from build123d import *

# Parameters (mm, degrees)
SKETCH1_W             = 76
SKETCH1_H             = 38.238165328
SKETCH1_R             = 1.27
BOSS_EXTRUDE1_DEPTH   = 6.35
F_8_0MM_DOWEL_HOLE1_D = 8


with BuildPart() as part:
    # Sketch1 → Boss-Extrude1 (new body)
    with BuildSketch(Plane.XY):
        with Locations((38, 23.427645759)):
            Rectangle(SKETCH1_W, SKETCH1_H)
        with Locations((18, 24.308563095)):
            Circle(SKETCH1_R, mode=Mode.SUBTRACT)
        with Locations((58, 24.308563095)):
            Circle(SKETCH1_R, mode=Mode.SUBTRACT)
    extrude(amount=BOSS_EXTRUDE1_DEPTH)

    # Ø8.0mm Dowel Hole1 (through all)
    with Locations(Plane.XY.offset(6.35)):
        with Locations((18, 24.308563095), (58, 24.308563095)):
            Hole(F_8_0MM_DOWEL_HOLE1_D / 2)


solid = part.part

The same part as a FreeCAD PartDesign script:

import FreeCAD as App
import Part
import Sketcher

V = App.Vector
Q = App.Units.Quantity

doc = App.newDocument("Part")
body = doc.addObject("PartDesign::Body", "Body")

sketch1 = body.newObject("Sketcher::SketchObject", "Sketch")
sketch1.AttachmentSupport = (doc.getObject("XY_Plane"), [""])
sketch1.MapMode = "FlatFace"
sketch1.addGeometry(Part.LineSegment(V(0, 42.546728, 0), V(0, 4.308563, 0)), False)
sketch1.addGeometry(Part.LineSegment(V(0, 4.308563, 0), V(76, 4.308563, 0)), False)
sketch1.addGeometry(Part.LineSegment(V(76, 4.308563, 0), V(76, 42.546728, 0)), False)
sketch1.addGeometry(Part.LineSegment(V(76, 42.546728, 0), V(0, 42.546728, 0)), False)
sketch1.addGeometry(Part.Circle(V(18, 24.308563, 0), V(0, 0, 1), 1.27), False)
sketch1.addGeometry(Part.Circle(V(58, 24.308563, 0), V(0, 0, 1), 1.27), False)
sketch1.addConstraint(Sketcher.Constraint("Coincident", 0, 2, 1, 1))
sketch1.addConstraint(Sketcher.Constraint("Coincident", 1, 2, 2, 1))
sketch1.addConstraint(Sketcher.Constraint("Coincident", 2, 2, 3, 1))
sketch1.addConstraint(Sketcher.Constraint("Coincident", 3, 2, 0, 1))
sketch1.addConstraint(Sketcher.Constraint("Vertical", 0))
sketch1.addConstraint(Sketcher.Constraint("Horizontal", 1))
sketch1.addConstraint(Sketcher.Constraint("Vertical", 2))
sketch1.addConstraint(Sketcher.Constraint("Horizontal", 3))
sketch1.addConstraint(Sketcher.Constraint("Equal", 4, 5))
sketch1.addConstraint(Sketcher.Constraint("PointOnObject", 0, 2, -2))
sketch1.addConstraint(Sketcher.Constraint("Horizontal", 4, 3, 5, 3))
sketch1.addConstraint(Sketcher.Constraint("Diameter", 4, Q("2.54 mm")))
sketch1.addConstraint(Sketcher.Constraint("DistanceX", 1, 1, 1, 2, Q("76 mm")))
sketch1.addConstraint(Sketcher.Constraint("DistanceX", -1, 1, 4, 3, Q("18 mm")))
sketch1.addConstraint(Sketcher.Constraint("DistanceX", -1, 1, 5, 3, Q("58 mm")))
sketch1.addConstraint(Sketcher.Constraint("DistanceY", 0, 2, 4, 3, Q("20 mm")))
sketch1.addConstraint(Sketcher.Constraint("DistanceY", 0, 2, 0, 1, Q("38.238165 mm")))
sketch1.addConstraint(Sketcher.Constraint("DistanceY", -1, 1, 2, 2, Q("42.546728 mm")))
pad1 = body.newObject("PartDesign::Pad", "Pad")
pad1.Profile = sketch1
pad1.Length = 6.35

sketch2 = body.newObject("Sketcher::SketchObject", "Sketch001")
sketch2.AttachmentSupport = (doc.getObject("XY_Plane"), [""])
sketch2.MapMode = "FlatFace"
sketch2.AttachmentOffset = App.Placement(V(0, 0, 6.35), App.Rotation())
sketch2.addGeometry(Part.Circle(V(18, 24.308563, 0), V(0, 0, 1), 4), False)
sketch2.addGeometry(Part.Circle(V(58, 24.308563, 0), V(0, 0, 1), 4), False)
sketch2.addConstraint(Sketcher.Constraint("Equal", 0, 1))
sketch2.addConstraint(Sketcher.Constraint("Horizontal", 0, 3, 1, 3))
sketch2.addConstraint(Sketcher.Constraint("Diameter", 0, Q("8 mm")))
sketch2.addConstraint(Sketcher.Constraint("DistanceX", -1, 1, 0, 3, Q("18 mm")))
sketch2.addConstraint(Sketcher.Constraint("DistanceX", -1, 1, 1, 3, Q("58 mm")))
sketch2.addConstraint(Sketcher.Constraint("DistanceY", -1, 1, 0, 3, Q("24.308563 mm")))
doc.recompute()
hole = body.newObject("PartDesign::Hole", "Hole")
hole.Profile = sketch2
hole.ThreadType = "None"
hole.Diameter = 8
hole.DepthType = "ThroughAll"

doc.recompute()
